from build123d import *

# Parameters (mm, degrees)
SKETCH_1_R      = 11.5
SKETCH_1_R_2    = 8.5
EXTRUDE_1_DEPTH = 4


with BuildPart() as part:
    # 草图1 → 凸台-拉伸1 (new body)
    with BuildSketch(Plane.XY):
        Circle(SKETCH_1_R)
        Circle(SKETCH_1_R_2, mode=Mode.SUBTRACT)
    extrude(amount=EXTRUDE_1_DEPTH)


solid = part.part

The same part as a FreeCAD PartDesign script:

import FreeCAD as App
import Part
import Sketcher

doc = App.newDocument("Part")
body = doc.addObject("PartDesign::Body", "Body")

# Sketch on XY plane
sketch1 = body.newObject("Sketcher::SketchObject", "Sketch")
sketch1.AttachmentSupport = (doc.getObject("XY_Plane"), [""])
sketch1.MapMode = "FlatFace"
sketch1.addGeometry([
    Part.Circle(App.Vector(0, 0, 0), App.Vector(0, 0, 1), 12),
    Part.Circle(App.Vector(0, 0, 0), App.Vector(0, 0, 1), 8),
], False)
sketch1.addConstraint([
    Sketcher.Constraint("Coincident", 0, 3, -1, 1),
    Sketcher.Constraint("Coincident", 1, 3, -1, 1),
    Sketcher.Constraint("Diameter", 0, 23.0),
    Sketcher.Constraint("Diameter", 1, 17.0),
])
pad1 = body.newObject("PartDesign::Pad", "Pad")
pad1.Profile = sketch1
pad1.Length = 4

doc.recompute()
